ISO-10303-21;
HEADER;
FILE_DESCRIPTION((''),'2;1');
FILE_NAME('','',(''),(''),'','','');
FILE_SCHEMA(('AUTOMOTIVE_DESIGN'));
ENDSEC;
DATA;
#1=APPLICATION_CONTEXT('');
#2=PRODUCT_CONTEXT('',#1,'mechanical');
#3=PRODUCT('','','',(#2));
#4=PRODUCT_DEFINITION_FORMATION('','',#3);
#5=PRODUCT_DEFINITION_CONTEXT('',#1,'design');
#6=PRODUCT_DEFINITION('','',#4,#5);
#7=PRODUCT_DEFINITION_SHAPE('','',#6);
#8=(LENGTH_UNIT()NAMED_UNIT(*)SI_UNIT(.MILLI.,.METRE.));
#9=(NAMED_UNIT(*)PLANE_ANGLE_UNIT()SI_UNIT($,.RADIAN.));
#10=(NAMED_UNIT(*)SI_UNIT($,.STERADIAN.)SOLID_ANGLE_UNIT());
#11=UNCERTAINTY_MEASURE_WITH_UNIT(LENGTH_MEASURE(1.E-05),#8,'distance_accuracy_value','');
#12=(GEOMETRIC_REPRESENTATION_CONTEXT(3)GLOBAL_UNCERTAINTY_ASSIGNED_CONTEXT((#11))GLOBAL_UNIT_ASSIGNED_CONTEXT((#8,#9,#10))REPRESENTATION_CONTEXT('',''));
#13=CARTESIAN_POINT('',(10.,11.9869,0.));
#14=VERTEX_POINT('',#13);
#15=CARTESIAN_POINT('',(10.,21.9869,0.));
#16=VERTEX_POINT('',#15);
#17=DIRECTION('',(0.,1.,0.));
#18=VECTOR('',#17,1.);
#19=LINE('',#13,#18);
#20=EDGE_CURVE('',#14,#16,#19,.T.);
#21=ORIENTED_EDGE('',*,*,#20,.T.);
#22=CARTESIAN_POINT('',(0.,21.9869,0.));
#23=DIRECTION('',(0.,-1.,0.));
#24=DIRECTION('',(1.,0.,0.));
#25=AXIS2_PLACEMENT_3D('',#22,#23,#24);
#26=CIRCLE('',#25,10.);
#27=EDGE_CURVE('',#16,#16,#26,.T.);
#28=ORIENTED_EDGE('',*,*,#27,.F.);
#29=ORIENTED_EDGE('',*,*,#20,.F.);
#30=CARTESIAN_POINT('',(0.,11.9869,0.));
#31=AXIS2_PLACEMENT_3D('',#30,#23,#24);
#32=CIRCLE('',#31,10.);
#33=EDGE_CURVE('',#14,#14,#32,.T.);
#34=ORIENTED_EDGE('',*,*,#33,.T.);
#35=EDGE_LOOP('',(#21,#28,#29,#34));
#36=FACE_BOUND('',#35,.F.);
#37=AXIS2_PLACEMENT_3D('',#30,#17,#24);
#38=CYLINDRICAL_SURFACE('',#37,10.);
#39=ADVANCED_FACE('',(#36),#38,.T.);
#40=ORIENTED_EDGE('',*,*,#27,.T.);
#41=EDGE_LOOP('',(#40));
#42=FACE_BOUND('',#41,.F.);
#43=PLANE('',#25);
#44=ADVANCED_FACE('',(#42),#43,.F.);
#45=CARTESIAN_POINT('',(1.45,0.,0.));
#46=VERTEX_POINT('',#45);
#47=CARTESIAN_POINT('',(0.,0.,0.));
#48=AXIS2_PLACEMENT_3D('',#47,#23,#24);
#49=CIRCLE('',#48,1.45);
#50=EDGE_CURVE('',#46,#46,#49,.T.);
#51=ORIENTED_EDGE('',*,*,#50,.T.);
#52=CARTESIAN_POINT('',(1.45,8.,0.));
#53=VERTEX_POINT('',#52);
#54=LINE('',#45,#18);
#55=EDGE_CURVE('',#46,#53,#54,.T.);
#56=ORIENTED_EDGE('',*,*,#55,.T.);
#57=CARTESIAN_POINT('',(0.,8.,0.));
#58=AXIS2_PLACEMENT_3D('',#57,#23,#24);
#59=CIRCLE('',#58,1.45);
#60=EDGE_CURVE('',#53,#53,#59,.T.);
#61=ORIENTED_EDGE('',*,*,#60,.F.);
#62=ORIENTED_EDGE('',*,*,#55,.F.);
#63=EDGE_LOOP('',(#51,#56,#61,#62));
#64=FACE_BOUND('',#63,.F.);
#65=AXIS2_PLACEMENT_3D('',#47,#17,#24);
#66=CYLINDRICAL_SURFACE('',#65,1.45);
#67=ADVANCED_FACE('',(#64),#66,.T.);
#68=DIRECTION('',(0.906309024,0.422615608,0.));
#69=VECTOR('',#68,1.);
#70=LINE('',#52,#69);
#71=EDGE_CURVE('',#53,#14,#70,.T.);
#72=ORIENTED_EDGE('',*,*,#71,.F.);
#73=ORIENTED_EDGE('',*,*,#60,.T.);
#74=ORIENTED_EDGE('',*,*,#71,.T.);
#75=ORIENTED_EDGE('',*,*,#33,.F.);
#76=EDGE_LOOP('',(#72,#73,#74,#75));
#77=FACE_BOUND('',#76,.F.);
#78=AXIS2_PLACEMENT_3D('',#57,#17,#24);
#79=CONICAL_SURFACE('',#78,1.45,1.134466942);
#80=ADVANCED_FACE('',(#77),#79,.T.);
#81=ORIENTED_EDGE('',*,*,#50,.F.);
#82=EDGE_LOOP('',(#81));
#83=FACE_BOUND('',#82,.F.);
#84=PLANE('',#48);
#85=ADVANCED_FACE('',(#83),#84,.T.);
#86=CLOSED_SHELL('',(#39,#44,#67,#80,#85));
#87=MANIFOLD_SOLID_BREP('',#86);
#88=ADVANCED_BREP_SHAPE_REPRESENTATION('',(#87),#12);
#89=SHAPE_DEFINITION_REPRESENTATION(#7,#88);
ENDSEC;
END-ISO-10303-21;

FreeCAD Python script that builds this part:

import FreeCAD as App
import Part
import Sketcher

V = App.Vector
Q = App.Units.Quantity

doc = App.newDocument("Part")
body = doc.addObject("PartDesign::Body", "Body")

# Sketch on XY plane
sketch1 = doc.addObject("Sketcher::SketchObject", "Sketch")
body.addObject(sketch1)
sketch1.AttachmentSupport = (doc.XY_Plane, [""])
sketch1.MapMode = "FlatFace"
sketch1.addGeometry(Part.LineSegment(V(0, 22, 0), V(0, 0, 0)), False)
sketch1.addGeometry(Part.LineSegment(V(0, 0, 0), V(1.4, 0, 0)), False)
sketch1.addGeometry(Part.LineSegment(V(1.4, 0, 0), V(1.4, 8, 0)), False)
sketch1.addGeometry(Part.LineSegment(V(1.4, 8, 0), V(10, 12, 0)), False)
sketch1.addGeometry(Part.LineSegment(V(10, 12, 0), V(10, 22, 0)), False)
sketch1.addGeometry(Part.LineSegment(V(10, 22, 0), V(0, 22, 0)), False)
sketch1.addConstraint(Sketcher.Constraint("Coincident", 0, 2, 1, 1))
sketch1.addConstraint(Sketcher.Constraint("Coincident", 1, 2, 2, 1))
sketch1.addConstraint(Sketcher.Constraint("Coincident", 2, 2, 3, 1))
sketch1.addConstraint(Sketcher.Constraint("Coincident", 3, 2, 4, 1))
sketch1.addConstraint(Sketcher.Constraint("Coincident", 4, 2, 5, 1))
sketch1.addConstraint(Sketcher.Constraint("Coincident", 5, 2, 0, 1))
sketch1.addConstraint(Sketcher.Constraint("Vertical", 0))
sketch1.addConstraint(Sketcher.Constraint("Horizontal", 1))
sketch1.addConstraint(Sketcher.Constraint("Vertical", 2))
sketch1.addConstraint(Sketcher.Constraint("Vertical", 4))
sketch1.addConstraint(Sketcher.Constraint("Horizontal", 5))
sketch1.addConstraint(Sketcher.Constraint("Coincident", 0, 2, -1, 1))
sketch1.addConstraint(Sketcher.Constraint("Equal", 5, 4))
sketch1.addConstraint(Sketcher.Constraint("DistanceX", 5, 2, 5, 1, 10.0))
sketch1.addConstraint(Sketcher.Constraint("DistanceY", 2, 1, 2, 2, 8.0))
sketch1.addConstraint(Sketcher.Constraint("DistanceX", 1, 1, 1, 2, 1.45))
sketch1.addConstraint(Sketcher.Constraint("Angle", 3, Q("24.9998 deg")))
revolution = doc.addObject("PartDesign::Revolution", "Revolution")
body.addObject(revolution)
revolution.Profile = sketch1
revolution.ReferenceAxis = (sketch1, ["V_Axis"])
revolution.Angle = 360

doc.recompute()
